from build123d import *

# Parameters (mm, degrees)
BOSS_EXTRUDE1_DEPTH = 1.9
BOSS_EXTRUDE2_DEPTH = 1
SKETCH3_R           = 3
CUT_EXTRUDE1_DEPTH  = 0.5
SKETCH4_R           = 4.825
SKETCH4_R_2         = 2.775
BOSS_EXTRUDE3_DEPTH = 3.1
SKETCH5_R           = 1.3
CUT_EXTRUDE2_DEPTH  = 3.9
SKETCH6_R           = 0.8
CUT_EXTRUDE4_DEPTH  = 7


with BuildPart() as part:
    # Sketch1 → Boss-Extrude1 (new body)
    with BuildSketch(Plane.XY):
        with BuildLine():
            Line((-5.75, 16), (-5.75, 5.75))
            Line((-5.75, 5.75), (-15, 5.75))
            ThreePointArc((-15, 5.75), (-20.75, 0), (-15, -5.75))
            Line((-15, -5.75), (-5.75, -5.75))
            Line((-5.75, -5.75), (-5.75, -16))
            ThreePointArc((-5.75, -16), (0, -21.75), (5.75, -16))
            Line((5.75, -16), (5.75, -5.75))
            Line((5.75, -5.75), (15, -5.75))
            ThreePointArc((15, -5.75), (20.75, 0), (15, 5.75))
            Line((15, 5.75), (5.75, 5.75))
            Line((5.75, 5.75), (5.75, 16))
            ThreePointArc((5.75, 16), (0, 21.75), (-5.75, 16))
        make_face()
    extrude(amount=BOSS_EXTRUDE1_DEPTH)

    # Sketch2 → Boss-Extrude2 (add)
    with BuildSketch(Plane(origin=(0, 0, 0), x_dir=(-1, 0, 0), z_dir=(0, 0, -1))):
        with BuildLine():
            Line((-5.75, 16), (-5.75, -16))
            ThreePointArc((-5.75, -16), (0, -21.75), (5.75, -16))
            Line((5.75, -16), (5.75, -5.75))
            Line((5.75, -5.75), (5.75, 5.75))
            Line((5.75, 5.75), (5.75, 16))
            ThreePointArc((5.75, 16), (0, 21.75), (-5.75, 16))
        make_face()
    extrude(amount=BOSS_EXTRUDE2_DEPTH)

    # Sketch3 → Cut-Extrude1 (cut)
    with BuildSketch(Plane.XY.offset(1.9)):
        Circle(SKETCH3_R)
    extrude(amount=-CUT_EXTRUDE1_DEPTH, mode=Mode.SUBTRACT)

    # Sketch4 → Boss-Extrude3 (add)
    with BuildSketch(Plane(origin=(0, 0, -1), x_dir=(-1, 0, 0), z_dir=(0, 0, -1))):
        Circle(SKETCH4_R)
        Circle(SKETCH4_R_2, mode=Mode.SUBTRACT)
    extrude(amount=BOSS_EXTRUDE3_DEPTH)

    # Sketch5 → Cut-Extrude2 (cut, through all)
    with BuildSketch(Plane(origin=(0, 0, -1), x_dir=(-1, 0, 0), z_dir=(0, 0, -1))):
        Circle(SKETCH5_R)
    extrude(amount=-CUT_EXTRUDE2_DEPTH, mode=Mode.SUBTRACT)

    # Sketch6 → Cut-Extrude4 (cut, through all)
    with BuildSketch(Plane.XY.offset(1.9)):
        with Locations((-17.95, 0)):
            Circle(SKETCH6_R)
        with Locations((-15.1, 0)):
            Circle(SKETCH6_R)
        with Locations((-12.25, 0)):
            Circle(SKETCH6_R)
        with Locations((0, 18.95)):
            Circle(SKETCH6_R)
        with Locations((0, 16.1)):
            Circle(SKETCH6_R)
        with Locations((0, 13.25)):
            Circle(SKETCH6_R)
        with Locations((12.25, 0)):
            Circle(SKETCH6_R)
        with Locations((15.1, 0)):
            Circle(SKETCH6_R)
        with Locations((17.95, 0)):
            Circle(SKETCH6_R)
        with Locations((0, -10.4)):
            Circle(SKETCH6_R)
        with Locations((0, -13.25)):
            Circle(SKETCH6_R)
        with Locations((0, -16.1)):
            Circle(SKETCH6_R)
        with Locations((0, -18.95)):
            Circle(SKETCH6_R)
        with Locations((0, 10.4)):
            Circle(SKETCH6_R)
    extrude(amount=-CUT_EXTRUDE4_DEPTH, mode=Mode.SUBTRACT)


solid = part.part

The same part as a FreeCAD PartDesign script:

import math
import FreeCAD as App
import Part
import Sketcher

doc = App.newDocument("Part")
body = doc.addObject("PartDesign::Body", "Body")

# Sketch on XY plane
sketch1 = doc.addObject("Sketcher::SketchObject", "Sketch")
body.addObject(sketch1)
sketch1.AttachmentSupport = (doc.XY_Plane, [""])
sketch1.MapMode = "FlatFace"
sketch1.addGeometry([
    Part.LineSegment(App.Vector(-6, 16, 0), App.Vector(-6, 6, 0)),  # 0
    Part.LineSegment(App.Vector(-6, 6, 0), App.Vector(-15, 6, 0)),  # 1
    Part.ArcOfCircle(Part.Circle(App.Vector(-15, 0, 0), App.Vector(0, 0, 1), 6), math.radians(90), math.radians(270)),  # 2
    Part.LineSegment(App.Vector(-15, -6, 0), App.Vector(-6, -6, 0)),  # 3
    Part.LineSegment(App.Vector(-6, -6, 0), App.Vector(-6, -16, 0)),  # 4
    Part.ArcOfCircle(Part.Circle(App.Vector(0, -16, 0), App.Vector(0, 0, 1), 6), math.radians(180), math.radians(360)),  # 5
    Part.LineSegment(App.Vector(6, -16, 0), App.Vector(6, -6, 0)),  # 6
    Part.LineSegment(App.Vector(6, -6, 0), App.Vector(15, -6, 0)),  # 7
    Part.ArcOfCircle(Part.Circle(App.Vector(15, 0, 0), App.Vector(0, 0, 1), 6), math.radians(-90), math.radians(90)),  # 8
    Part.LineSegment(App.Vector(15, 6, 0), App.Vector(6, 6, 0)),  # 9
    Part.LineSegment(App.Vector(6, 6, 0), App.Vector(6, 16, 0)),  # 10
    Part.ArcOfCircle(Part.Circle(App.Vector(0, 16, 0), App.Vector(0, 0, 1), 6), math.radians(0), math.radians(180)),  # 11
], False)
sketch1.addConstraint([
    Sketcher.Constraint("Coincident", 0, 2, 1, 1),
    Sketcher.Constraint("Tangent", 1, 2, 2, 1),
    Sketcher.Constraint("Tangent", 2, 2, 3, 1),
    Sketcher.Constraint("Coincident", 3, 2, 4, 1),
    Sketcher.Constraint("Tangent", 4, 2, 5, 1),
    Sketcher.Constraint("Tangent", 5, 2, 6, 1),
    Sketcher.Constraint("Coincident", 6, 2, 7, 1),
    Sketcher.Constraint("Tangent", 7, 2, 8, 1),
    Sketcher.Constraint("Tangent", 8, 2, 9, 1),
    Sketcher.Constraint("Coincident", 9, 2, 10, 1),
    Sketcher.Constraint("Tangent", 10, 2, 11, 1),
    Sketcher.Constraint("Tangent", 11, 2, 0, 1),
    Sketcher.Constraint("Vertical", 0),
    Sketcher.Constraint("Horizontal", 1),
    Sketcher.Constraint("Horizontal", 3),
    Sketcher.Constraint("Vertical", 4),
    Sketcher.Constraint("Vertical", 6),
    Sketcher.Constraint("Horizontal", 7),
    Sketcher.Constraint("Horizontal", 9),
    Sketcher.Constraint("Vertical", 10),
    Sketcher.Constraint("Equal", 2, 5),
    Sketcher.Constraint("Equal", 5, 8),
    Sketcher.Constraint("Equal", 8, 11),
    Sketcher.Constraint("Symmetric", 2, 3, 8, 3, -1, 1),
    Sketcher.Constraint("Symmetric", 5, 3, 11, 3, -1, 1),
    Sketcher.Constraint("Symmetric", 3, 2, 6, 2, -2),
    Sketcher.Constraint("Radius", 2, 5.75),
    Sketcher.Constraint("DistanceX", 2, 3, -1, 1, 15.0),
    Sketcher.Constraint("DistanceY", 5, 3, -1, 1, 16.0),
])
pad1 = doc.addObject("PartDesign::Pad", "Pad")
body.addObject(pad1)
pad1.Profile = sketch1
pad1.Length = 1.9

# Sketch on XY plane
sketch2 = doc.addObject("Sketcher::SketchObject", "Sketch001")
body.addObject(sketch2)
sketch2.AttachmentSupport = (doc.XY_Plane, [""])
sketch2.MapMode = "FlatFace"
sketch2.addGeometry([
    Part.LineSegment(App.Vector(6, 16, 0), App.Vector(6, -16, 0)),
    Part.ArcOfCircle(Part.Circle(App.Vector(0, -16, 0), App.Vector(0, 0, 1), 6), math.radians(180), math.radians(360)),
    Part.LineSegment(App.Vector(-6, -16, 0), App.Vector(-6, 16, 0)),
    Part.ArcOfCircle(Part.Circle(App.Vector(0, 16, 0), App.Vector(0, 0, 1), 6), math.radians(0), math.radians(180)),
], False)
sketch2.addConstraint([
    Sketcher.Constraint("Tangent", 0, 2, 1, 2),
    Sketcher.Constraint("Tangent", 1, 1, 2, 1),
    Sketcher.Constraint("Tangent", 2, 2, 3, 2),
    Sketcher.Constraint("Tangent", 3, 1, 0, 1),
    Sketcher.Constraint("Vertical", 0),
    Sketcher.Constraint("Vertical", 2),
    Sketcher.Constraint("Symmetric", 1, 3, 3, 3, -1, 1),
    Sketcher.Constraint("DistanceY", 0, 2, 0, 1, 32.0),
    Sketcher.Constraint("Radius", 1, 5.75),
])
pad2 = doc.addObject("PartDesign::Pad", "Pad001")
body.addObject(pad2)
pad2.Profile = sketch2
pad2.Length = 1
pad2.Reversed = True

# Sketch on XY plane
sketch3 = doc.addObject("Sketcher::SketchObject", "Sketch002")
body.addObject(sketch3)
sketch3.AttachmentSupport = (doc.XY_Plane, [""])
sketch3.MapMode = "FlatFace"
sketch3.AttachmentOffset = App.Placement(App.Vector(0, 0, 1.9), App.Rotation())
sketch3.addGeometry(Part.Circle(App.Vector(0, 0, 0), App.Vector(0, 0, 1), 3), False)
sketch3.addConstraint([
    Sketcher.Constraint("Coincident", 0, 3, -1, 1),
    Sketcher.Constraint("Diameter", 0, 6.0),
])
pocket1 = doc.addObject("PartDesign::Pocket", "Pocket")
body.addObject(pocket1)
pocket1.Profile = sketch3
pocket1.Length = 0.5

# Sketch on XY plane
sketch4 = doc.addObject("Sketcher::SketchObject", "Sketch003")
body.addObject(sketch4)
sketch4.AttachmentSupport = (doc.XY_Plane, [""])
sketch4.MapMode = "FlatFace"
sketch4.AttachmentOffset = App.Placement(App.Vector(0, 0, -1), App.Rotation())
sketch4.addGeometry([
    Part.Circle(App.Vector(0, 0, 0), App.Vector(0, 0, 1), 4.8),
    Part.Circle(App.Vector(0, 0, 0), App.Vector(0, 0, 1), 2.8),
], False)
sketch4.addConstraint([
    Sketcher.Constraint("Coincident", 0, 3, -1, 1),
    Sketcher.Constraint("Coincident", 1, 3, -1, 1),
    Sketcher.Constraint("Diameter", 0, 9.65),
    Sketcher.Constraint("Diameter", 1, 5.55),
])
pad3 = doc.addObject("PartDesign::Pad", "Pad002")
body.addObject(pad3)
pad3.Profile = sketch4
pad3.Length = 3.1
pad3.Reversed = True

# Sketch on XY plane
sketch5 = doc.addObject("Sketcher::SketchObject", "Sketch004")
body.addObject(sketch5)
sketch5.AttachmentSupport = (doc.XY_Plane, [""])
sketch5.MapMode = "FlatFace"
sketch5.AttachmentOffset = App.Placement(App.Vector(0, 0, -1), App.Rotation())
sketch5.addGeometry(Part.Circle(App.Vector(0, 0, 0), App.Vector(0, 0, 1), 1.3), False)
sketch5.addConstraint([
    Sketcher.Constraint("Coincident", 0, 3, -1, 1),
    Sketcher.Constraint("Diameter", 0, 2.6),
])
pocket2 = doc.addObject("PartDesign::Pocket", "Pocket001")
body.addObject(pocket2)
pocket2.Profile = sketch5
pocket2.Type = "ThroughAll"
pocket2.Reversed = True

# Sketch on XY plane
sketch6 = doc.addObject("Sketcher::SketchObject", "Sketch005")
body.addObject(sketch6)
sketch6.AttachmentSupport = (doc.XY_Plane, [""])
sketch6.MapMode = "FlatFace"
sketch6.AttachmentOffset = App.Placement(App.Vector(0, 0, 1.9), App.Rotation())
sketch6.addGeometry([
    Part.Circle(App.Vector(-17.9, 0, 0), App.Vector(0, 0, 1), 0.8),  # 0
    Part.Circle(App.Vector(-15.1, 0, 0), App.Vector(0, 0, 1), 0.8),  # 1
    Part.Circle(App.Vector(-12.2, 0, 0), App.Vector(0, 0, 1), 0.8),  # 2
    Part.Circle(App.Vector(0, 18.9, 0), App.Vector(0, 0, 1), 0.8),  # 3
    Part.Circle(App.Vector(0, 16.1, 0), App.Vector(0, 0, 1), 0.8),  # 4
    Part.Circle(App.Vector(0, 13.2, 0), App.Vector(0, 0, 1), 0.8),  # 5
    Part.Circle(App.Vector(12.2, 0, 0), App.Vector(0, 0, 1), 0.8),  # 6
    Part.Circle(App.Vector(15.1, 0, 0), App.Vector(0, 0, 1), 0.8),  # 7
    Part.Circle(App.Vector(17.9, 0, 0), App.Vector(0, 0, 1), 0.8),  # 8
    Part.Circle(App.Vector(0, -10.4, 0), App.Vector(0, 0, 1), 0.8),  # 9
    Part.Circle(App.Vector(0, -13.2, 0), App.Vector(0, 0, 1), 0.8),  # 10
    Part.Circle(App.Vector(0, -16.1, 0), App.Vector(0, 0, 1), 0.8),  # 11
    Part.Circle(App.Vector(0, -18.9, 0), App.Vector(0, 0, 1), 0.8),  # 12
    Part.Circle(App.Vector(0, 10.4, 0), App.Vector(0, 0, 1), 0.8),  # 13
], False)
sketch6.addConstraint([
    Sketcher.Constraint("Equal", 0, 1),
    Sketcher.Constraint("Equal", 1, 2),
    Sketcher.Constraint("Equal", 2, 3),
    Sketcher.Constraint("Equal", 3, 4),
    Sketcher.Constraint("Equal", 4, 5),
    Sketcher.Constraint("Equal", 5, 6),
    Sketcher.Constraint("Equal", 6, 7),
    Sketcher.Constraint("Equal", 7, 8),
    Sketcher.Constraint("Equal", 8, 9),
    Sketcher.Constraint("Equal", 9, 10),
    Sketcher.Constraint("Equal", 10, 11),
    Sketcher.Constraint("Equal", 11, 12),
    Sketcher.Constraint("Equal", 12, 13),
    Sketcher.Constraint("Symmetric", 2, 3, 6, 3, -1, 1),
    Sketcher.Constraint("Symmetric", 1, 3, 7, 3, -1, 1),
    Sketcher.Constraint("Symmetric", 0, 3, 8, 3, -1, 1),
    Sketcher.Constraint("Symmetric", 5, 3, 10, 3, -1, 1),
    Sketcher.Constraint("Symmetric", 4, 3, 11, 3, -1, 1),
    Sketcher.Constraint("Symmetric", 3, 3, 12, 3, -1, 1),
    Sketcher.Constraint("Symmetric", 9, 3, 13, 3, -1, 1),
    Sketcher.Constraint("PointOnObject", 0, 3, -1),
    Sketcher.Constraint("PointOnObject", 1, 3, -1),
    Sketcher.Constraint("PointOnObject", 2, 3, -1),
    Sketcher.Constraint("PointOnObject", 3, 3, -2),
    Sketcher.Constraint("PointOnObject", 4, 3, -2),
    Sketcher.Constraint("PointOnObject", 5, 3, -2),
    Sketcher.Constraint("PointOnObject", 9, 3, -2),
    Sketcher.Constraint("Diameter", 0, 1.6),
    Sketcher.Constraint("DistanceX", 1, 3, -1, 1, 15.1),
    Sketcher.Constraint("DistanceY", -1, 1, 4, 3, 16.1),
    Sketcher.Constraint("DistanceY", 9, 3, -1, 1, 10.4),
    Sketcher.Constraint("DistanceX", 0, 3, 2, 3, 5.7),
    Sketcher.Constraint("DistanceY", 5, 3, 3, 3, 5.7),
    Sketcher.Constraint("DistanceX", 2, 3, 6, 3, 24.5),
    Sketcher.Constraint("DistanceY", -1, 1, 3, 3, 18.95),
])
pocket3 = doc.addObject("PartDesign::Pocket", "Pocket002")
body.addObject(pocket3)
pocket3.Profile = sketch6
pocket3.Type = "ThroughAll"

doc.recompute()
